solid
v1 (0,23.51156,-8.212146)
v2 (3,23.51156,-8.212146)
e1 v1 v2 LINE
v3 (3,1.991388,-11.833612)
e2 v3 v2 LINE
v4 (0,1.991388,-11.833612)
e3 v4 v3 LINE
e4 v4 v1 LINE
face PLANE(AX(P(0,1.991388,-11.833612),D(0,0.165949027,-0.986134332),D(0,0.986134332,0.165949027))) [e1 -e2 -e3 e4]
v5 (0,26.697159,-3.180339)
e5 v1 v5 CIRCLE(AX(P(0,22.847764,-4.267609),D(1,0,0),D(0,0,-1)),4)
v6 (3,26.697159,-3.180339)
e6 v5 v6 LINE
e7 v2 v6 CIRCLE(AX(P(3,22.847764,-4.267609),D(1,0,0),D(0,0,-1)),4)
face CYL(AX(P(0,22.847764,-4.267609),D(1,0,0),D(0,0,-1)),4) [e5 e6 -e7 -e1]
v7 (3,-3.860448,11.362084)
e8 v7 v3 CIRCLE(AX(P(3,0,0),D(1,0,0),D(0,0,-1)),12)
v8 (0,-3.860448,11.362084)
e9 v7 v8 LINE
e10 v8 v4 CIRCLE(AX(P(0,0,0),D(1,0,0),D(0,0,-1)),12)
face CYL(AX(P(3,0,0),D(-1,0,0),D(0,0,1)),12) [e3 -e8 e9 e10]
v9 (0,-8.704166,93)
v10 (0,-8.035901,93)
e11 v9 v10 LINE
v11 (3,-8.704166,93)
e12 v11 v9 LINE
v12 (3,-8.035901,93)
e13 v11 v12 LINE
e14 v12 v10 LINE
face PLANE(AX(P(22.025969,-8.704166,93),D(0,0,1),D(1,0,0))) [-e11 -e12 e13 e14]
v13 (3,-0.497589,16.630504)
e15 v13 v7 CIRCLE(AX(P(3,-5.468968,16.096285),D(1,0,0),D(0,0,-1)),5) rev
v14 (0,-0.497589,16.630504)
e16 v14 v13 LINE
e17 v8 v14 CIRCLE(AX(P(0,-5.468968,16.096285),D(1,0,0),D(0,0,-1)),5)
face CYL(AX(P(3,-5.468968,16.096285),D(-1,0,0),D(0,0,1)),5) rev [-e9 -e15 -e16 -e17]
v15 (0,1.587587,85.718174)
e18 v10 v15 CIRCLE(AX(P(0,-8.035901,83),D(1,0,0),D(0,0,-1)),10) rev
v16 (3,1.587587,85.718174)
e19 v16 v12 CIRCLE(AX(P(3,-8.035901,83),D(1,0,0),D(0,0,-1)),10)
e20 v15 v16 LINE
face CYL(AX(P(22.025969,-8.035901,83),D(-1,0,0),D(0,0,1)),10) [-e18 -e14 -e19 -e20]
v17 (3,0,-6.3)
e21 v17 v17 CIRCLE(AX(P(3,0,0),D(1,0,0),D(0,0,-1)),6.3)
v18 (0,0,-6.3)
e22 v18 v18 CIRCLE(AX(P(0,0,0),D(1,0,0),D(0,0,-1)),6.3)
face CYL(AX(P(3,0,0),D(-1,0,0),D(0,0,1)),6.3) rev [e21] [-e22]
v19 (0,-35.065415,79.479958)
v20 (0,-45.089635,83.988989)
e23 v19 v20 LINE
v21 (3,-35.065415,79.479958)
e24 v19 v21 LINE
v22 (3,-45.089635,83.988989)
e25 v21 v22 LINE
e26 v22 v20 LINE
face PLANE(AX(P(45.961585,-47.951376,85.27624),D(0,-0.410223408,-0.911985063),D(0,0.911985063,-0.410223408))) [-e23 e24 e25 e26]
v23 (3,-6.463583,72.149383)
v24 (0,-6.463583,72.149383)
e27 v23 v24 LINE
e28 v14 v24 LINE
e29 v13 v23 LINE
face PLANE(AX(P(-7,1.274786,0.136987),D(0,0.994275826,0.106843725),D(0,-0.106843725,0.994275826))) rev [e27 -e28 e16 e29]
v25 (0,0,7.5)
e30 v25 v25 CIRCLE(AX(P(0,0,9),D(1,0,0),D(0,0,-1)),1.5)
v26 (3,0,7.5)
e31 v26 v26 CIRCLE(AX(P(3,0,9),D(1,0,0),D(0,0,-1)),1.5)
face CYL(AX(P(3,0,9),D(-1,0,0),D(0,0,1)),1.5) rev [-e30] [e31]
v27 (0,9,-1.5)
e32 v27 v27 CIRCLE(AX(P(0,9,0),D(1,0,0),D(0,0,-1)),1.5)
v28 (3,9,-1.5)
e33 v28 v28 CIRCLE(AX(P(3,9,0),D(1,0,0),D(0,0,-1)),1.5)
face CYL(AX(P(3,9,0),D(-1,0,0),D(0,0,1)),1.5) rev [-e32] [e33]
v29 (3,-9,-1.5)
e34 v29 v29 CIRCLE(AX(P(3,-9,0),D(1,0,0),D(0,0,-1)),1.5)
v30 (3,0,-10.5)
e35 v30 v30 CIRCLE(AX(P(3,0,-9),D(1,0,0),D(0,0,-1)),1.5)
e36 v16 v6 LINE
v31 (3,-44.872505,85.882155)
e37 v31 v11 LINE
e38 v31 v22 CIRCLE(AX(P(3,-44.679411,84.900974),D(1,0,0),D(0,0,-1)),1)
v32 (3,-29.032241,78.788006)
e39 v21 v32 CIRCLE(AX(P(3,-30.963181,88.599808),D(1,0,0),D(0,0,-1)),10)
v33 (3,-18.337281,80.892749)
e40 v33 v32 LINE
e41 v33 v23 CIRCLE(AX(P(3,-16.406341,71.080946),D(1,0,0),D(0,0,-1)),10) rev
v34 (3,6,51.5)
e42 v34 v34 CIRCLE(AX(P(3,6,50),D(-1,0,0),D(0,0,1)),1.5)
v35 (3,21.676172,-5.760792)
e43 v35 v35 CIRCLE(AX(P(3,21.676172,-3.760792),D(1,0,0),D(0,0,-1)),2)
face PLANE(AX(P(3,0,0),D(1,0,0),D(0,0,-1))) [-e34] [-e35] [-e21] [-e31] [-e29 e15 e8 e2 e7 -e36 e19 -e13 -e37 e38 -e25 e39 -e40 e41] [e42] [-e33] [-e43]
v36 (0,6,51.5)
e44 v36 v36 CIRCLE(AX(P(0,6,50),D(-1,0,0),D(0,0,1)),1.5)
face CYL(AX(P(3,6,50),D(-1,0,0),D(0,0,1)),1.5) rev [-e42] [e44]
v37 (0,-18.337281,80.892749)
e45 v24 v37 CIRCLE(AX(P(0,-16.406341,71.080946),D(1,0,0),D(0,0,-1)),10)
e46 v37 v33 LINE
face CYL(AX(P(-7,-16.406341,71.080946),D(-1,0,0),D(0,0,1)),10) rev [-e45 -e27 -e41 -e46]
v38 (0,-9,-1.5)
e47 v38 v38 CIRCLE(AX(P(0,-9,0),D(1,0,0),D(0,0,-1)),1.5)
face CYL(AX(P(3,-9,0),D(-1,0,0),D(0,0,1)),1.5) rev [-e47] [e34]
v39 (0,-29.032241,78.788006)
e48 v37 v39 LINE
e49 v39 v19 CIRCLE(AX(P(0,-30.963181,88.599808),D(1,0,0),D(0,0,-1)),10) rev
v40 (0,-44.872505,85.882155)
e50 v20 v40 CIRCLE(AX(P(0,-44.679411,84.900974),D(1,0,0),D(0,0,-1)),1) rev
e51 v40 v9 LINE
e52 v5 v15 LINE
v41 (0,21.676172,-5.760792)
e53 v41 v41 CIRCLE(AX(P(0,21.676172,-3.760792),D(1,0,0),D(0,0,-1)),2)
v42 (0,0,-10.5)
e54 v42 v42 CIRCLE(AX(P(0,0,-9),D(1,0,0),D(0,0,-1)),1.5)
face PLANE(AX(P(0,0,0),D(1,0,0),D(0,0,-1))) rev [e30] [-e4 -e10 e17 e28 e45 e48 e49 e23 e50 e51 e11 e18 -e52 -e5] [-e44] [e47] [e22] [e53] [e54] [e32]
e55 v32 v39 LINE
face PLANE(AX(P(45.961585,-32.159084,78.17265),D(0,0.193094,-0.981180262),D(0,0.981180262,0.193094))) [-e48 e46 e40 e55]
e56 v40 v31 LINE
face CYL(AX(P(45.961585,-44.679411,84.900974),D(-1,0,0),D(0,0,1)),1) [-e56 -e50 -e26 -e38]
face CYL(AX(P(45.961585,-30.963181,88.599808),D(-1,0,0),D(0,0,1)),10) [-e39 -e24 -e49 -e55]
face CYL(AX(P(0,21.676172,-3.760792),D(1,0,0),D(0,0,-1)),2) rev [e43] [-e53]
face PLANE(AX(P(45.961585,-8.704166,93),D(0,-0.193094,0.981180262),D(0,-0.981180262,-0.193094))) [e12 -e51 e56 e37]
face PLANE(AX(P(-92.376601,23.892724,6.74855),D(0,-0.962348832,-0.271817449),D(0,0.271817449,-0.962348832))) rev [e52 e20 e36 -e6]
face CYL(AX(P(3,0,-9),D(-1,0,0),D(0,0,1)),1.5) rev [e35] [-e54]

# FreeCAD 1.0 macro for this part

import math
import FreeCAD as App
import Part
import Sketcher

V = App.Vector
Q = App.Units.Quantity


def edges_at(feature, points):
    """Names of the edges that pass closest to the given points."""
    edges = feature.Shape.Edges
    near = lambda p: min(range(len(edges)), key=lambda i: edges[i].distToShape(Part.Vertex(*p))[0])
    return sorted({f"Edge{near(p) + 1}" for p in points})

doc = App.newDocument("Part")
body = doc.addObject("PartDesign::Body", "Body")

sketch1 = doc.addObject("Sketcher::SketchObject", "Sketch")
body.addObject(sketch1)
sketch1.AttachmentSupport = (doc.YZ_Plane, [""])
sketch1.MapMode = "FlatFace"
sketch1.addGeometry([
    Part.Circle(V(0, 0, 0), V(0, 0, 1), 12),
    Part.Circle(V(-9, 0, 0), V(0, 0, 1), 1.5),
    Part.Circle(V(0, 9, 0), V(0, 0, 1), 1.5),
    Part.Circle(V(0, 0, 0), V(0, 0, 1), 6.3),
    Part.Circle(V(0, -9, 0), V(0, 0, 1), 1.5),
    Part.Circle(V(9, 0, 0), V(0, 0, 1), 1.5),
], False)
sketch1.addConstraint([
    Sketcher.Constraint("Coincident", 0, 3, -1, 1),
    Sketcher.Constraint("Coincident", 3, 3, -1, 1),
    Sketcher.Constraint("Equal", 1, 2),
    Sketcher.Constraint("Equal", 2, 4),
    Sketcher.Constraint("Equal", 4, 5),
    Sketcher.Constraint("Symmetric", 2, 3, 4, 3, -1, 1),
    Sketcher.Constraint("Symmetric", 1, 3, 5, 3, -1, 1),
    Sketcher.Constraint("PointOnObject", 1, 3, -1),
    Sketcher.Constraint("PointOnObject", 2, 3, -2),
    Sketcher.Constraint("Diameter", 0, Q("24 mm")),
    Sketcher.Constraint("Diameter", 1, Q("3 mm")),
    Sketcher.Constraint("Diameter", 3, Q("12.6 mm")),
    Sketcher.Constraint("DistanceX", 1, 3, -1, 1, Q("9 mm")),
    Sketcher.Constraint("DistanceY", -1, 1, 2, 3, Q("9 mm")),
])
pad1 = doc.addObject("PartDesign::Pad", "Pad")
body.addObject(pad1)
pad1.Profile = sketch1
pad1.Length = 3

sketch2 = doc.addObject("Sketcher::SketchObject", "Sketch001")
body.addObject(sketch2)
sketch2.AttachmentSupport = (doc.YZ_Plane, [""])
sketch2.MapMode = "FlatFace"
sketch2.addGeometry([
    Part.LineSegment(V(-22, 68.5, 0), V(-30, 78, 0)),
    Part.LineSegment(V(-30, 78, 0), V(3, 78, 0)),
    Part.LineSegment(V(3, 78, 0), V(13.4, 18.9, 0)),
    Part.LineSegment(V(13.4, 18.9, 0), V(12, -0.9, 0)),
    Part.ArcOfCircle(Part.Circle(V(0, 0, 0), V(0, 0, 1), 12), math.radians(-4), math.radians(90)),
    Part.ArcOfCircle(Part.Circle(V(0, 0, 0), V(0, 0, 1), 12), math.radians(90), math.radians(109.47)),
    Part.LineSegment(V(-4, 11.3, 0), V(-6.9, 32, 0)),
    Part.LineSegment(V(-6.9, 32, 0), V(-12, 67.8, 0)),
    Part.LineSegment(V(-12, 67.8, 0), V(-22, 68.5, 0)),
], False)
sketch2.addConstraint([
    Sketcher.Constraint("Coincident", 0, 2, 1, 1),
    Sketcher.Constraint("Coincident", 1, 2, 2, 1),
    Sketcher.Constraint("Coincident", 2, 2, 3, 1),
    Sketcher.Constraint("Tangent", 3, 2, 4, 1),
    Sketcher.Constraint("Tangent", 4, 2, 5, 1),
    Sketcher.Constraint("Coincident", 5, 2, 6, 1),
    Sketcher.Constraint("Coincident", 6, 2, 7, 1),
    Sketcher.Constraint("Coincident", 7, 2, 8, 1),
    Sketcher.Constraint("Coincident", 8, 2, 0, 1),
    Sketcher.Constraint("Horizontal", 1),
    Sketcher.Constraint("Coincident", 4, 3, -1, 1),
    Sketcher.Constraint("Equal", 4, 5),
    Sketcher.Constraint("PointOnObject", 4, 2, -2),
    Sketcher.Constraint("Parallel", 6, 7),
    Sketcher.Constraint("Radius", 4, Q("12 mm")),
    Sketcher.Constraint("DistanceX", 1, 1, 1, 2, Q("33 mm")),
    Sketcher.Constraint("Angle", 0, Q("130 deg")),
    Sketcher.Constraint("Angle", 2, Q("-80 deg")),
    Sketcher.Constraint("Distance", 2, Q("60 mm")),
    Sketcher.Constraint("DistanceX", 0, 2, -1, 1, Q("30 mm")),
    Sketcher.Constraint("DistanceY", -1, 1, 0, 2, Q("78 mm")),
    Sketcher.Constraint("DistanceX", 5, 2, -1, 1, Q("4 mm")),
    Sketcher.Constraint("DistanceX", 7, 2, -1, 1, Q("12 mm")),
    Sketcher.Constraint("Distance", 6, Q("20.901602 mm")),
    Sketcher.Constraint("DistanceY", 2, 2, 7, 2, Q("48.923798 mm")),
    Sketcher.Constraint("DistanceX", 8, 2, -1, 1, Q("22.03262 mm")),
])
pad2 = doc.addObject("PartDesign::Pad", "Pad001")
body.addObject(pad2)
pad2.Profile = sketch2
pad2.Length = 3
doc.recompute()

fillet = doc.addObject("PartDesign::Fillet", "Fillet")
body.addObject(fillet)
fillet.Base = (pad2, edges_at(pad2, [(1.5, 13.419, 18.912)]))
fillet.Radius = 30
doc.recompute()

fillet2 = doc.addObject("PartDesign::Fillet", "Fillet001")
body.addObject(fillet2)
fillet2.Base = (fillet, edges_at(fillet, [(1.5, -30, 78)]))
fillet2.Radius = 1

sketch3 = doc.addObject("Sketcher::SketchObject", "Sketch002")
body.addObject(sketch3)
sketch3.AttachmentSupport = (doc.YZ_Plane, [""])
sketch3.MapMode = "FlatFace"
sketch3.addGeometry(Part.Circle(V(6, 50, 0), V(0, 0, 1), 1.5), False)
sketch3.addConstraint([
    Sketcher.Constraint("Diameter", 0, Q("3 mm")),
    Sketcher.Constraint("DistanceX", -1, 1, 0, 3, Q("6 mm")),
    Sketcher.Constraint("DistanceY", -1, 1, 0, 3, Q("50 mm")),
])
pocket1 = doc.addObject("PartDesign::Pocket", "Pocket")
body.addObject(pocket1)
pocket1.Profile = sketch3
pocket1.Length = 3
pocket1.Reversed = True
doc.recompute()

fillet3 = doc.addObject("PartDesign::Fillet", "Fillet002")
body.addObject(fillet3)
fillet3.Base = (pocket1, edges_at(pocket1, [(1.5, -22.033, 68.505)]))
fillet3.Radius = 3

sketch4 = doc.addObject("Sketcher::SketchObject", "Sketch003")
body.addObject(sketch4)
sketch4.AttachmentSupport = (doc.YZ_Plane, [""])
sketch4.MapMode = "FlatFace"
sketch4.AttachmentOffset = App.Placement(V(0, 0, 3), App.Rotation())
sketch4.addGeometry([
    Part.LineSegment(V(2, -11.8, 0), V(23.5, -8.2, 0)),
    Part.ArcOfCircle(Part.Circle(V(22.8, -4.3, 0), V(0, 0, 1), 4), math.radians(-80), math.radians(29)),
    Part.LineSegment(V(26.4, -2.3, 0), V(12.8, 22.3, 0)),
    Part.LineSegment(V(12.8, 22.3, 0), V(12, -0.9, 0)),
    Part.LineSegment(V(12, -0.9, 0), V(2, -11.8, 0)),
    Part.Circle(V(21.7, -3.8, 0), V(0, 0, 1), 2),
], False)
sketch4.addConstraint([
    Sketcher.Constraint("Tangent", 0, 2, 1, 1),
    Sketcher.Constraint("Tangent", 1, 2, 2, 1),
    Sketcher.Constraint("Coincident", 2, 2, 3, 1),
    Sketcher.Constraint("Coincident", 3, 2, 4, 1),
    Sketcher.Constraint("Coincident", 4, 2, 0, 1),
    Sketcher.Constraint("Diameter", 5, Q("4 mm")),
    Sketcher.Constraint("Radius", 1, Q("4 mm")),
    Sketcher.Constraint("DistanceX", 2, 2, 1, 3, Q("10.024898 mm")),
    Sketcher.Constraint("DistanceX", 3, 2, 5, 3, Q("9.708301 mm")),
    Sketcher.Constraint("Distance", 0, Q("21.822759 mm")),
    Sketcher.Constraint("Distance", 3, Q("23.175738 mm")),
    Sketcher.Constraint("DistanceY", 1, 3, -1, 1, Q("4.267609 mm")),
    Sketcher.Constraint("DistanceX", -1, 1, 0, 2, Q("23.51156 mm")),
    Sketcher.Constraint("DistanceX", -1, 1, 1, 2, Q("26.353381 mm")),
    Sketcher.Constraint("DistanceX", -1, 1, 3, 2, Q("11.967871 mm")),
    Sketcher.Constraint("DistanceX", -1, 1, 4, 2, Q("1.991388 mm")),
    Sketcher.Constraint("DistanceY", 5, 3, 2, 2, Q("26.043218 mm")),
])
pad3 = doc.addObject("PartDesign::Pad", "Pad002")
body.addObject(pad3)
pad3.Profile = sketch4
pad3.Length = 3
pad3.Reversed = True
doc.recompute()

fillet4 = doc.addObject("PartDesign::Fillet", "Fillet003")
body.addObject(fillet4)
fillet4.Base = (pad3, edges_at(pad3, [(1.5, 12.823, 22.282)]))
fillet4.Radius = 3

sketch5 = doc.addObject("Sketcher::SketchObject", "Sketch004")
body.addObject(sketch5)
sketch5.AttachmentSupport = (doc.YZ_Plane, [""])
sketch5.MapMode = "FlatFace"
sketch5.AttachmentOffset = App.Placement(V(0, 0, 3), App.Rotation())
sketch5.addGeometry([
    Part.ArcOfCircle(Part.Circle(V(0, 0, 0), V(0, 0, 1), 12), math.radians(90), math.radians(109.47)),
    Part.LineSegment(V(0, 12, 0), V(-6, 67.8, 0)),
    Part.LineSegment(V(-6, 67.8, 0), V(-12, 67.8, 0)),
    Part.LineSegment(V(-12, 67.8, 0), V(-4, 11.3, 0)),
], False)
sketch5.addConstraint([
    Sketcher.Constraint("Coincident", 0, 1, 1, 1),
    Sketcher.Constraint("Coincident", 1, 2, 2, 1),
    Sketcher.Constraint("Coincident", 2, 2, 3, 1),
    Sketcher.Constraint("Coincident", 3, 2, 0, 2),
    Sketcher.Constraint("Horizontal", 2),
    Sketcher.Constraint("Coincident", 0, 3, -1, 1),
    Sketcher.Constraint("PointOnObject", 0, 1, -2),
    Sketcher.Constraint("Radius", 0, Q("12 mm")),
    Sketcher.Constraint("DistanceX", 2, 2, 2, 1, Q("6 mm")),
    Sketcher.Constraint("DistanceX", 1, 2, -1, 1, Q("6 mm")),
    Sketcher.Constraint("DistanceX", 3, 2, -1, 1, Q("4 mm")),
    Sketcher.Constraint("Distance", 1, Q("56.156784 mm")),
])
pocket2 = doc.addObject("PartDesign::Pocket", "Pocket001")
body.addObject(pocket2)
pocket2.Profile = sketch5
pocket2.Length = 10

sketch6 = doc.addObject("Sketcher::SketchObject", "Sketch005")
body.addObject(sketch6)
sketch6.AttachmentSupport = (doc.YZ_Plane, [""])
sketch6.MapMode = "FlatFace"
sketch6.AttachmentOffset = App.Placement(V(0, 0, 3), App.Rotation())
sketch6.addGeometry([
    Part.ArcOfCircle(Part.Circle(V(-27.9, 77, 0), V(0, 0, 1), 1), math.radians(90), math.radians(220)),
    Part.LineSegment(V(-27.9, 78, 0), V(-39.2, 78, 0)),
    Part.LineSegment(V(-39.2, 78, 0), V(-28.9, 65.7, 0)),
    Part.LineSegment(V(-28.9, 65.7, 0), V(-9, 67.8, 0)),
    Part.LineSegment(V(-9, 67.8, 0), V(-12, 67.8, 0)),
    Part.LineSegment(V(-12, 67.8, 0), V(-20.8, 68.4, 0)),
    Part.ArcOfCircle(Part.Circle(V(-20.6, 71.4, 0), V(0, 0, 1), 3), math.radians(-140), math.radians(-94)),
    Part.LineSegment(V(-22.9, 69.5, 0), V(-28.6, 76.4, 0)),
], False)
sketch6.addConstraint([
    Sketcher.Constraint("Tangent", 0, 1, 1, 1),
    Sketcher.Constraint("Coincident", 1, 2, 2, 1),
    Sketcher.Constraint("Coincident", 2, 2, 3, 1),
    Sketcher.Constraint("Coincident", 3, 2, 4, 1),
    Sketcher.Constraint("Coincident", 4, 2, 5, 1),
    Sketcher.Constraint("Tangent", 5, 2, 6, 2),
    Sketcher.Constraint("Tangent", 6, 1, 7, 1),
    Sketcher.Constraint("Tangent", 7, 2, 0, 2),
    Sketcher.Constraint("Horizontal", 1),
    Sketcher.Constraint("Horizontal", 4),
    Sketcher.Constraint("Parallel", 2, 7),
    Sketcher.Constraint("Radius", 0, Q("1 mm")),
    Sketcher.Constraint("Radius", 6, Q("3 mm")),
    Sketcher.Constraint("DistanceX", 4, 2, 4, 1, Q("3 mm")),
    Sketcher.Constraint("Angle", 2, Q("-50 deg")),
    Sketcher.Constraint("Distance", 3, Q("20 mm")),
    Sketcher.Constraint("DistanceY", -1, 1, 0, 3, Q("77 mm")),
    Sketcher.Constraint("DistanceX", 3, 2, -1, 1, Q("9 mm")),
    Sketcher.Constraint("DistanceY", 2, 2, 6, 1, Q("3.7862 mm")),
    Sketcher.Constraint("Distance", 2, Q("16.058522 mm")),
    Sketcher.Constraint("Distance", 5, Q("8.775879 mm")),
    Sketcher.Constraint("DistanceX", 1, 2, 1, 1, Q("11.352242 mm")),
])
pad4 = doc.addObject("PartDesign::Pad", "Pad003")
body.addObject(pad4)
pad4.Profile = sketch6
pad4.Length = 3
pad4.Reversed = True

sketch7 = doc.addObject("Sketcher::SketchObject", "Sketch006")
body.addObject(sketch7)
sketch7.AttachmentSupport = (doc.YZ_Plane, [""])
sketch7.MapMode = "FlatFace"
sketch7.AttachmentOffset = App.Placement(V(0, 0, 3), App.Rotation())
sketch7.addGeometry([
    Part.LineSegment(V(-4, 51, 0), V(-10, 103, 0)),
    Part.LineSegment(V(-10, 103, 0), V(-45, 99, 0)),
    Part.LineSegment(V(-45, 99, 0), V(-40, 48, 0)),
    Part.LineSegment(V(-40, 48, 0), V(-4, 51, 0)),
], False)
sketch7.addConstraint([
    Sketcher.Constraint("Coincident", 0, 2, 1, 1),
    Sketcher.Constraint("Coincident", 1, 2, 2, 1),
    Sketcher.Constraint("Coincident", 2, 2, 3, 1),
    Sketcher.Constraint("Coincident", 3, 2, 0, 1),
    Sketcher.Constraint("Perpendicular", 0, 1),
    Sketcher.Constraint("Perpendicular", 1, 2),
    Sketcher.Constraint("Perpendicular", 2, 3),
    Sketcher.Constraint("DistanceY", -1, 1, 0, 2, Q("102.7307 mm")),
    Sketcher.Constraint("Distance", 1, Q("35.539521 mm")),
    Sketcher.Constraint("DistanceY", -1, 1, 2, 2, Q("47.680741 mm")),
    Sketcher.Constraint("DistanceX", 3, 2, -1, 1, Q("4.242251 mm")),
    Sketcher.Constraint("DistanceX", 2, 2, 0, 2, Q("29.828522 mm")),
])
pocket3 = doc.addObject("PartDesign::Pocket", "Pocket002")
body.addObject(pocket3)
pocket3.Profile = sketch7
pocket3.Type = "ThroughAll"

sketch8 = doc.addObject("Sketcher::SketchObject", "Sketch007")
body.addObject(sketch8)
sketch8.AttachmentSupport = (doc.YZ_Plane, [""])
sketch8.MapMode = "FlatFace"
sketch8.addGeometry([
    Part.LineSegment(V(-7, 78, 0), V(-9, 93, 0)),
    Part.LineSegment(V(-9, 93, 0), V(0, 93, 0)),
    Part.LineSegment(V(0, 93, 0), V(3, 78, 0)),
    Part.LineSegment(V(3, 78, 0), V(-7, 78, 0)),
], False)
sketch8.addConstraint([
    Sketcher.Constraint("Coincident", 0, 2, 1, 1),
    Sketcher.Constraint("Coincident", 1, 2, 2, 1),
    Sketcher.Constraint("Coincident", 2, 2, 3, 1),
    Sketcher.Constraint("Coincident", 3, 2, 0, 1),
    Sketcher.Constraint("Horizontal", 1),
    Sketcher.Constraint("Horizontal", 3),
    Sketcher.Constraint("Angle", 2, Q("-80 deg")),
    Sketcher.Constraint("DistanceY", -1, 1, 0, 2, Q("93 mm")),
    Sketcher.Constraint("DistanceX", -1, 1, 2, 2, Q("3 mm")),
    Sketcher.Constraint("DistanceY", -1, 1, 2, 2, Q("78 mm")),
    Sketcher.Constraint("DistanceX", 1, 1, 1, 2, Q("9.059261 mm")),
    Sketcher.Constraint("DistanceX", 3, 2, 3, 1, Q("10.092283 mm")),
])
pad5 = doc.addObject("PartDesign::Pad", "Pad004")
body.addObject(pad5)
pad5.Profile = sketch8
pad5.Length = 3

sketch9 = doc.addObject("Sketcher::SketchObject", "Sketch008")
body.addObject(sketch9)
sketch9.AttachmentSupport = (doc.YZ_Plane, [""])
sketch9.MapMode = "FlatFace"
sketch9.addGeometry([
    Part.LineSegment(V(-48, 85, 0), V(-9, 93, 0)),
    Part.LineSegment(V(-9, 93, 0), V(-8, 83, 0)),
    Part.LineSegment(V(-8, 83, 0), V(-32, 78, 0)),
    Part.LineSegment(V(-32, 78, 0), V(-48, 85, 0)),
], False)
sketch9.addConstraint([
    Sketcher.Constraint("Coincident", 0, 2, 1, 1),
    Sketcher.Constraint("Coincident", 1, 2, 2, 1),
    Sketcher.Constraint("Coincident", 2, 2, 3, 1),
    Sketcher.Constraint("Coincident", 3, 2, 0, 1),
    Sketcher.Constraint("Parallel", 0, 2),
    Sketcher.Constraint("Distance", 0, Q("40 mm")),
    Sketcher.Constraint("Distance", 2, Q("25 mm")),
    Sketcher.Constraint("DistanceY", -1, 1, 0, 2, Q("93 mm")),
    Sketcher.Constraint("DistanceY", -1, 1, 1, 2, Q("83 mm")),
    Sketcher.Constraint("DistanceX", 3, 2, 1, 2, Q("40.321799 mm")),
    Sketcher.Constraint("Distance", 1, Q("10.057571 mm")),
    Sketcher.Constraint("DistanceX", 0, 2, -1, 1, Q("8.704166 mm")),
])
pad6 = doc.addObject("PartDesign::Pad", "Pad005")
body.addObject(pad6)
pad6.Profile = sketch9
pad6.Length = 3
doc.recompute()

fillet5 = doc.addObject("PartDesign::Fillet", "Fillet004")
body.addObject(fillet5)
fillet5.Base = (pad6, edges_at(pad6, [(1.5, 0.355, 93), (1.5, -32.159, 78.173), (1.5, -7.63, 83)]))
fillet5.Radius = 10
doc.recompute()

fillet6 = doc.addObject("PartDesign::Fillet", "Fillet005")
body.addObject(fillet6)
fillet6.Base = (fillet5, edges_at(fillet5, [(1.5, -47.951, 85.276)]))
fillet6.Radius = 1

sketch10 = doc.addObject("Sketcher::SketchObject", "Sketch009")
body.addObject(sketch10)
sketch10.AttachmentSupport = (doc.YZ_Plane, [""])
sketch10.MapMode = "FlatFace"
sketch10.AttachmentOffset = App.Placement(V(0, 0, 3), App.Rotation())
sketch10.addGeometry([
    Part.LineSegment(V(26.697159, -3.180339, 0), V(1.587587, 85.718174, 0)),
    Part.ArcOfCircle(Part.Circle(V(-8.035901, 83, 0), V(0, 0, 1), 10), math.radians(10), math.radians(15.772444)),
    Part.LineSegment(V(1.812177, 84.736482, 0), V(12.739102, 22.76681, 0)),
    Part.ArcOfCircle(Part.Circle(V(15.693525, 23.287755, 0), V(0, 0, 1), 3), math.radians(-170), math.radians(-151.211607)),
    Part.LineSegment(V(13.064312, 21.843026, 0), V(26.353381, -2.341305, 0)),
    Part.ArcOfCircle(Part.Circle(V(22.847764, -4.267609, 0), V(0, 0, 1), 4), math.radians(15.772444), math.radians(28.788393)),
], False)
sketch10.addConstraint([
    Sketcher.Constraint("Coincident", 0, 2, 1, 2),
    Sketcher.Constraint("Coincident", 1, 1, 2, 1),
    Sketcher.Constraint("Coincident", 2, 2, 3, 1),
    Sketcher.Constraint("Coincident", 3, 2, 4, 1),
    Sketcher.Constraint("Coincident", 4, 2, 5, 2),
    Sketcher.Constraint("Coincident", 5, 1, 0, 1),
    Sketcher.Constraint("Radius", 1, Q("10 mm")),
    Sketcher.Constraint("Radius", 3, Q("3 mm")),
    Sketcher.Constraint("Radius", 5, Q("4 mm")),
    Sketcher.Constraint("DistanceY", -1, 1, 1, 3, Q("83 mm")),
    Sketcher.Constraint("Distance", 0, Q("92.376601 mm")),
    Sketcher.Constraint("DistanceX", 1, 3, -1, 1, Q("8.035901 mm")),
    Sketcher.Constraint("DistanceX", -1, 1, 2, 2, Q("12.739102 mm")),
    Sketcher.Constraint("Distance", 4, Q("27.594949 mm")),
    Sketcher.Constraint("DistanceY", 5, 3, -1, 1, Q("4.267609 mm")),
    Sketcher.Constraint("DistanceY", -1, 1, 1, 1, Q("84.736482 mm")),
    Sketcher.Constraint("DistanceY", -1, 1, 2, 2, Q("22.76681 mm")),
    Sketcher.Constraint("DistanceX", -1, 1, 4, 2, Q("26.353381 mm")),
    Sketcher.Constraint("DistanceX", -1, 1, 5, 1, Q("26.697159 mm")),
    Sketcher.Constraint("DistanceY", 5, 1, -1, 1, Q("3.180339 mm")),
    Sketcher.Constraint("DistanceX", 3, 3, 5, 3, Q("7.154239 mm")),
])
pad7 = doc.addObject("PartDesign::Pad", "Pad006")
body.addObject(pad7)
pad7.Profile = sketch10
pad7.Length = 3
pad7.Reversed = True
doc.recompute()

fillet7 = doc.addObject("PartDesign::Fillet", "Fillet006")
body.addObject(fillet7)
fillet7.Base = (pad7, edges_at(pad7, [(1.5, 0, 12)]))
fillet7.Radius = 5

doc.recompute()
